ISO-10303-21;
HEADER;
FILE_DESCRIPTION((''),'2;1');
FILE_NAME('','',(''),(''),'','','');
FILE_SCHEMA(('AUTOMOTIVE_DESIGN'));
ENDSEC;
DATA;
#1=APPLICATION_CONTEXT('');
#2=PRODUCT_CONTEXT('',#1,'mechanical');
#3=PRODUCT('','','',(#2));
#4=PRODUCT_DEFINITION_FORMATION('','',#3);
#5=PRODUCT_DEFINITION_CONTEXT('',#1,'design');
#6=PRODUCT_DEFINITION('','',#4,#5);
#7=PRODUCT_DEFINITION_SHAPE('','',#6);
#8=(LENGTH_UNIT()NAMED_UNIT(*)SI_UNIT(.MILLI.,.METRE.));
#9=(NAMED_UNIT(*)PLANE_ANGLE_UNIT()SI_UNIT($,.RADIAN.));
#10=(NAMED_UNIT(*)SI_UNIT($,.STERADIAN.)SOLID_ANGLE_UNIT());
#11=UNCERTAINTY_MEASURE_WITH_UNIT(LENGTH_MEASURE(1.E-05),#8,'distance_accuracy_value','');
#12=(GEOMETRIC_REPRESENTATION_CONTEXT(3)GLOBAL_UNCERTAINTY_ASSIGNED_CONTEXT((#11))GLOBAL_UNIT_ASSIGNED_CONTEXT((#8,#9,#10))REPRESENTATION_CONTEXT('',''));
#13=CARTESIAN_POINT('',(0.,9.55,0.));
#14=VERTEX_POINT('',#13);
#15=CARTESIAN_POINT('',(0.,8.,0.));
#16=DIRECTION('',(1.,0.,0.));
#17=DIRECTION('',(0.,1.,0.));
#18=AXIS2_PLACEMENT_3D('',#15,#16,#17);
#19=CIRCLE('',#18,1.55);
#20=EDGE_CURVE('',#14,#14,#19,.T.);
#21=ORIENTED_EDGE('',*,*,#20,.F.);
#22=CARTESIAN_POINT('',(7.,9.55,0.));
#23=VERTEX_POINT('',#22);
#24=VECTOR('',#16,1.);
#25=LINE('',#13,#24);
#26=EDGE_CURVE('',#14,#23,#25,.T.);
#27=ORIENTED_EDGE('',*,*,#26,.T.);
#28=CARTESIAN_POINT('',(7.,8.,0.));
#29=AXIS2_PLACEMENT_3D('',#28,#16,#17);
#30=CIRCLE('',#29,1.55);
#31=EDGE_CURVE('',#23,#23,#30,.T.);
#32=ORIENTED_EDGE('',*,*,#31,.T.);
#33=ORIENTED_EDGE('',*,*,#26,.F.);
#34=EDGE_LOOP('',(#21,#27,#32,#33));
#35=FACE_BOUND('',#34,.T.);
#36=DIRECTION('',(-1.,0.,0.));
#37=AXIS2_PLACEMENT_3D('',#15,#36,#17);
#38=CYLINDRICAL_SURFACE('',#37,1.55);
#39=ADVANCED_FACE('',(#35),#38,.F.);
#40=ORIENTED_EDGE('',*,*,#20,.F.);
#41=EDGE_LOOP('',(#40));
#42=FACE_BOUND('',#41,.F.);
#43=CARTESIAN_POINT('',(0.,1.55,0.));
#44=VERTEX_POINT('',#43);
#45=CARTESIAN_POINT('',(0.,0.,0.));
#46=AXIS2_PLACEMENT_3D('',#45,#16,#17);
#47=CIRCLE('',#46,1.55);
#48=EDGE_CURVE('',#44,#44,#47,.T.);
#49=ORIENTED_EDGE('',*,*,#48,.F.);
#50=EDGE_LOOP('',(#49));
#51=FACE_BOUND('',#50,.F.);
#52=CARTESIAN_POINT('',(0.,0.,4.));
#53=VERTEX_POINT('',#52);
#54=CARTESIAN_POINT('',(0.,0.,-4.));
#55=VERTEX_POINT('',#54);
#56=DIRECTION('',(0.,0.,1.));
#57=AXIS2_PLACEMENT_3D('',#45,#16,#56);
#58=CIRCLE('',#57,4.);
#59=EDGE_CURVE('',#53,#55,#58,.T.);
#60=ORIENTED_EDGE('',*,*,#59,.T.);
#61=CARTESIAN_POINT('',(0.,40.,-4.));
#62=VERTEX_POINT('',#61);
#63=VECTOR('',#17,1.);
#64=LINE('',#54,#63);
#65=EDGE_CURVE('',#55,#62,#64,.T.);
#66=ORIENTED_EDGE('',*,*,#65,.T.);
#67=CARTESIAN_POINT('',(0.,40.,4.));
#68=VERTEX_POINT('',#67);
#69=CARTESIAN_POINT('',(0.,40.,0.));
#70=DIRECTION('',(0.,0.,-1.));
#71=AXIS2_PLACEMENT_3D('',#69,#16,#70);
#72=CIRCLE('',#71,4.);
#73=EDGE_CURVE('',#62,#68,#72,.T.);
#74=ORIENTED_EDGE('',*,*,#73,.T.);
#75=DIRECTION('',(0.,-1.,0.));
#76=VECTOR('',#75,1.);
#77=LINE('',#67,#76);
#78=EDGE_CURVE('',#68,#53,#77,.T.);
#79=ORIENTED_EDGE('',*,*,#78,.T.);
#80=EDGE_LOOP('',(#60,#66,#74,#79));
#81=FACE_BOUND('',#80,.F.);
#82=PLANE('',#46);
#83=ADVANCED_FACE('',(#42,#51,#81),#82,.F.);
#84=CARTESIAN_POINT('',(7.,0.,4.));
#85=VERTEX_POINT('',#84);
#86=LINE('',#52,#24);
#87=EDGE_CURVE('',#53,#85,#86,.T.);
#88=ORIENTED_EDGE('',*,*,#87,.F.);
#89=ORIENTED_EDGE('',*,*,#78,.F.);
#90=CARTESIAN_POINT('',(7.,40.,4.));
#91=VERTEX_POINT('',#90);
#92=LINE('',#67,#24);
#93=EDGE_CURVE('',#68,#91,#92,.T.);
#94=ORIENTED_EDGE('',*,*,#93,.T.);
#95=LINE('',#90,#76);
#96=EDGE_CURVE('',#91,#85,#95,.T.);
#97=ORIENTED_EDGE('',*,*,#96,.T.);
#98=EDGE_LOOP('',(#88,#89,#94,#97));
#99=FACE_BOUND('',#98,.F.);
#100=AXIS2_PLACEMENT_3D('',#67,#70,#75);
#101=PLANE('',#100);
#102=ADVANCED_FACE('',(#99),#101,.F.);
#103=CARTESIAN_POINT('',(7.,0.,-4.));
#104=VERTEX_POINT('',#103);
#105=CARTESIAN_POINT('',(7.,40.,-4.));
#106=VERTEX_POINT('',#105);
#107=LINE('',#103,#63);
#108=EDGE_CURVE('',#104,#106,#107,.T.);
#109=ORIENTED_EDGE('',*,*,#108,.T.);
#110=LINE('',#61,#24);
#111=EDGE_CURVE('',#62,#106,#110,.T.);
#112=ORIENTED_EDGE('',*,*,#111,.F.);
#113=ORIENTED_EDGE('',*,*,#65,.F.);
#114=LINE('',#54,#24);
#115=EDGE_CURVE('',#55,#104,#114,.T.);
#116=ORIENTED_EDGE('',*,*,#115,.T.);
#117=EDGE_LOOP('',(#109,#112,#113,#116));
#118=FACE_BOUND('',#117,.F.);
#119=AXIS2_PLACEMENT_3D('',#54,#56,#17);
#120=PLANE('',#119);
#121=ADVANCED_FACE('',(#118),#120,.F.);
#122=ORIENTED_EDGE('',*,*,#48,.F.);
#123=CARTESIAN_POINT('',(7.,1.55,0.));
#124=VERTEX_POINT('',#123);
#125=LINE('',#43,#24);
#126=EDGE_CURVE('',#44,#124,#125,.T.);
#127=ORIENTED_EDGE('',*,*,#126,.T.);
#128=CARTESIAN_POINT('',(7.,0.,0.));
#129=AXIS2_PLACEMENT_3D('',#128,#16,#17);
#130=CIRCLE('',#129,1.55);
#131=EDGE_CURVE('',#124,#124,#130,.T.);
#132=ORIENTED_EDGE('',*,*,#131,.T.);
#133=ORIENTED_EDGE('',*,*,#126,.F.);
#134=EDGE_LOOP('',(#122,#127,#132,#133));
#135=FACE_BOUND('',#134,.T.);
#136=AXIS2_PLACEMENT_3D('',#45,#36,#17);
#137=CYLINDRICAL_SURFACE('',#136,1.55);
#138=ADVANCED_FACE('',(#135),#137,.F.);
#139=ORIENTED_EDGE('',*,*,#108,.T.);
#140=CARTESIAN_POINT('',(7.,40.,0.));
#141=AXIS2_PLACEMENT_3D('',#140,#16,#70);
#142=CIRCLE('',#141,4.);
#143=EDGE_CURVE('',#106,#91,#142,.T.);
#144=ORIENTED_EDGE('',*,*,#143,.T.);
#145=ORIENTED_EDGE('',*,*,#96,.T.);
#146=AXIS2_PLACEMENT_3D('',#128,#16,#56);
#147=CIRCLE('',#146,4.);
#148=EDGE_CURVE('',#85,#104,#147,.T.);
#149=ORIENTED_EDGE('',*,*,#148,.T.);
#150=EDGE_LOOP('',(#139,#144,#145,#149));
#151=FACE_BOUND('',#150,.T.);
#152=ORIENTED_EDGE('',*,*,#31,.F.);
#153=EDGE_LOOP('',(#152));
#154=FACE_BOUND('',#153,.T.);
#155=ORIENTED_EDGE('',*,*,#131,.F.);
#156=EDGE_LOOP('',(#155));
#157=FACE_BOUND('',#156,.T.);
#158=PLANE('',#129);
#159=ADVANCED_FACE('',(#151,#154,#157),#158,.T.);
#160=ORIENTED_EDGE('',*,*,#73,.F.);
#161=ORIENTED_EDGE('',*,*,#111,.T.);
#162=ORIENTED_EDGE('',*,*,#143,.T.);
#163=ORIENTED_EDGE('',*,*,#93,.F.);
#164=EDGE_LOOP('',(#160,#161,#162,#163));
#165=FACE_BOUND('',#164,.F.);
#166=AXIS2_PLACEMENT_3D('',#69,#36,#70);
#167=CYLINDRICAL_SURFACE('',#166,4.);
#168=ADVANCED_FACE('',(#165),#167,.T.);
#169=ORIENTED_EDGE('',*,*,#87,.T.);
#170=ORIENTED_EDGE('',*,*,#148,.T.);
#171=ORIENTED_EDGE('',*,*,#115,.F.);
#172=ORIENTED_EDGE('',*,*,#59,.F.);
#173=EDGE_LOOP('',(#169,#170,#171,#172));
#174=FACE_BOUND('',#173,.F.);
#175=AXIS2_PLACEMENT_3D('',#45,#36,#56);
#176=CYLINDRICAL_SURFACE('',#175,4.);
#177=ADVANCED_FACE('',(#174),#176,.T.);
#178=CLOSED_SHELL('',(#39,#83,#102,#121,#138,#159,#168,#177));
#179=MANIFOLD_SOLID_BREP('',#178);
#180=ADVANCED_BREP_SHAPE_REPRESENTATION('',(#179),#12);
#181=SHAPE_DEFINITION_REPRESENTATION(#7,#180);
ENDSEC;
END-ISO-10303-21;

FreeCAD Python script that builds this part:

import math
import FreeCAD as App
import Part
import Sketcher
from FreeCAD import Vector

doc = App.newDocument("Part")
params = doc.addObject("Spreadsheet::Sheet", "Params")
for row, (alias, value) in enumerate([
    ("sketch1_radius", "4 mm"),
    ("sketch1_diameter", "3.1 mm"),
    ("sketch1_width", "40 mm"),
    ("pad1_length", "7 mm"),
], start=1):
    params.set(f"A{row}", alias)
    params.set(f"B{row}", "=" + value)
    params.setAlias(f"B{row}", alias)

body = doc.addObject("PartDesign::Body", "Body")

# Sketch on YZ plane
sketch1 = body.newObject("Sketcher::SketchObject", "Sketch")
sketch1.AttachmentSupport = (doc.getObject("YZ_Plane"), [""])
sketch1.MapMode = "FlatFace"
sketch1.addGeometry([
    Part.ArcOfCircle(Part.Circle(Vector(0, 0, 0), Vector(0, 0, 1), 4), math.radians(90), math.radians(270)),  # 0
    Part.LineSegment(Vector(0, -4, 0), Vector(40, -4, 0)),  # 1
    Part.ArcOfCircle(Part.Circle(Vector(40, 0, 0), Vector(0, 0, 1), 4), math.radians(-90), math.radians(90)),  # 2
    Part.LineSegment(Vector(40, 4, 0), Vector(0, 4, 0)),  # 3
    Part.Circle(Vector(0, 0, 0), Vector(0, 0, 1), 1.55),  # 4
    Part.Circle(Vector(8, 0, 0), Vector(0, 0, 1), 1.55),  # 5
], False)
sketch1.addConstraint([
    Sketcher.Constraint("Tangent", 0, 2, 1, 1),
    Sketcher.Constraint("Tangent", 1, 2, 2, 1),
    Sketcher.Constraint("Tangent", 2, 2, 3, 1),
    Sketcher.Constraint("Tangent", 3, 2, 0, 1),
    Sketcher.Constraint("Horizontal", 1),
    Sketcher.Constraint("Horizontal", 3),
    Sketcher.Constraint("Coincident", 0, 3, -1, 1),
    Sketcher.Constraint("Coincident", 4, 3, -1, 1),
    Sketcher.Constraint("Equal", 4, 5),
    Sketcher.Constraint("PointOnObject", 5, 3, -1),
    Sketcher.Constraint("Radius", 0, 4.0),
    Sketcher.Constraint("Diameter", 4, 3.1),
    Sketcher.Constraint("DistanceX", 1, 1, 1, 2, 40.0),
    Sketcher.Constraint("DistanceX", -1, 1, 5, 3, 8.0),
])
sketch1.setExpression("Constraints[10]", "Params.sketch1_radius")
sketch1.setExpression("Constraints[11]", "Params.sketch1_diameter")
sketch1.setExpression("Constraints[12]", "Params.sketch1_width")
pad1 = body.newObject("PartDesign::Pad", "Pad")
pad1.Profile = sketch1
pad1.setExpression("Length", "Params.pad1_length")

doc.recompute()
